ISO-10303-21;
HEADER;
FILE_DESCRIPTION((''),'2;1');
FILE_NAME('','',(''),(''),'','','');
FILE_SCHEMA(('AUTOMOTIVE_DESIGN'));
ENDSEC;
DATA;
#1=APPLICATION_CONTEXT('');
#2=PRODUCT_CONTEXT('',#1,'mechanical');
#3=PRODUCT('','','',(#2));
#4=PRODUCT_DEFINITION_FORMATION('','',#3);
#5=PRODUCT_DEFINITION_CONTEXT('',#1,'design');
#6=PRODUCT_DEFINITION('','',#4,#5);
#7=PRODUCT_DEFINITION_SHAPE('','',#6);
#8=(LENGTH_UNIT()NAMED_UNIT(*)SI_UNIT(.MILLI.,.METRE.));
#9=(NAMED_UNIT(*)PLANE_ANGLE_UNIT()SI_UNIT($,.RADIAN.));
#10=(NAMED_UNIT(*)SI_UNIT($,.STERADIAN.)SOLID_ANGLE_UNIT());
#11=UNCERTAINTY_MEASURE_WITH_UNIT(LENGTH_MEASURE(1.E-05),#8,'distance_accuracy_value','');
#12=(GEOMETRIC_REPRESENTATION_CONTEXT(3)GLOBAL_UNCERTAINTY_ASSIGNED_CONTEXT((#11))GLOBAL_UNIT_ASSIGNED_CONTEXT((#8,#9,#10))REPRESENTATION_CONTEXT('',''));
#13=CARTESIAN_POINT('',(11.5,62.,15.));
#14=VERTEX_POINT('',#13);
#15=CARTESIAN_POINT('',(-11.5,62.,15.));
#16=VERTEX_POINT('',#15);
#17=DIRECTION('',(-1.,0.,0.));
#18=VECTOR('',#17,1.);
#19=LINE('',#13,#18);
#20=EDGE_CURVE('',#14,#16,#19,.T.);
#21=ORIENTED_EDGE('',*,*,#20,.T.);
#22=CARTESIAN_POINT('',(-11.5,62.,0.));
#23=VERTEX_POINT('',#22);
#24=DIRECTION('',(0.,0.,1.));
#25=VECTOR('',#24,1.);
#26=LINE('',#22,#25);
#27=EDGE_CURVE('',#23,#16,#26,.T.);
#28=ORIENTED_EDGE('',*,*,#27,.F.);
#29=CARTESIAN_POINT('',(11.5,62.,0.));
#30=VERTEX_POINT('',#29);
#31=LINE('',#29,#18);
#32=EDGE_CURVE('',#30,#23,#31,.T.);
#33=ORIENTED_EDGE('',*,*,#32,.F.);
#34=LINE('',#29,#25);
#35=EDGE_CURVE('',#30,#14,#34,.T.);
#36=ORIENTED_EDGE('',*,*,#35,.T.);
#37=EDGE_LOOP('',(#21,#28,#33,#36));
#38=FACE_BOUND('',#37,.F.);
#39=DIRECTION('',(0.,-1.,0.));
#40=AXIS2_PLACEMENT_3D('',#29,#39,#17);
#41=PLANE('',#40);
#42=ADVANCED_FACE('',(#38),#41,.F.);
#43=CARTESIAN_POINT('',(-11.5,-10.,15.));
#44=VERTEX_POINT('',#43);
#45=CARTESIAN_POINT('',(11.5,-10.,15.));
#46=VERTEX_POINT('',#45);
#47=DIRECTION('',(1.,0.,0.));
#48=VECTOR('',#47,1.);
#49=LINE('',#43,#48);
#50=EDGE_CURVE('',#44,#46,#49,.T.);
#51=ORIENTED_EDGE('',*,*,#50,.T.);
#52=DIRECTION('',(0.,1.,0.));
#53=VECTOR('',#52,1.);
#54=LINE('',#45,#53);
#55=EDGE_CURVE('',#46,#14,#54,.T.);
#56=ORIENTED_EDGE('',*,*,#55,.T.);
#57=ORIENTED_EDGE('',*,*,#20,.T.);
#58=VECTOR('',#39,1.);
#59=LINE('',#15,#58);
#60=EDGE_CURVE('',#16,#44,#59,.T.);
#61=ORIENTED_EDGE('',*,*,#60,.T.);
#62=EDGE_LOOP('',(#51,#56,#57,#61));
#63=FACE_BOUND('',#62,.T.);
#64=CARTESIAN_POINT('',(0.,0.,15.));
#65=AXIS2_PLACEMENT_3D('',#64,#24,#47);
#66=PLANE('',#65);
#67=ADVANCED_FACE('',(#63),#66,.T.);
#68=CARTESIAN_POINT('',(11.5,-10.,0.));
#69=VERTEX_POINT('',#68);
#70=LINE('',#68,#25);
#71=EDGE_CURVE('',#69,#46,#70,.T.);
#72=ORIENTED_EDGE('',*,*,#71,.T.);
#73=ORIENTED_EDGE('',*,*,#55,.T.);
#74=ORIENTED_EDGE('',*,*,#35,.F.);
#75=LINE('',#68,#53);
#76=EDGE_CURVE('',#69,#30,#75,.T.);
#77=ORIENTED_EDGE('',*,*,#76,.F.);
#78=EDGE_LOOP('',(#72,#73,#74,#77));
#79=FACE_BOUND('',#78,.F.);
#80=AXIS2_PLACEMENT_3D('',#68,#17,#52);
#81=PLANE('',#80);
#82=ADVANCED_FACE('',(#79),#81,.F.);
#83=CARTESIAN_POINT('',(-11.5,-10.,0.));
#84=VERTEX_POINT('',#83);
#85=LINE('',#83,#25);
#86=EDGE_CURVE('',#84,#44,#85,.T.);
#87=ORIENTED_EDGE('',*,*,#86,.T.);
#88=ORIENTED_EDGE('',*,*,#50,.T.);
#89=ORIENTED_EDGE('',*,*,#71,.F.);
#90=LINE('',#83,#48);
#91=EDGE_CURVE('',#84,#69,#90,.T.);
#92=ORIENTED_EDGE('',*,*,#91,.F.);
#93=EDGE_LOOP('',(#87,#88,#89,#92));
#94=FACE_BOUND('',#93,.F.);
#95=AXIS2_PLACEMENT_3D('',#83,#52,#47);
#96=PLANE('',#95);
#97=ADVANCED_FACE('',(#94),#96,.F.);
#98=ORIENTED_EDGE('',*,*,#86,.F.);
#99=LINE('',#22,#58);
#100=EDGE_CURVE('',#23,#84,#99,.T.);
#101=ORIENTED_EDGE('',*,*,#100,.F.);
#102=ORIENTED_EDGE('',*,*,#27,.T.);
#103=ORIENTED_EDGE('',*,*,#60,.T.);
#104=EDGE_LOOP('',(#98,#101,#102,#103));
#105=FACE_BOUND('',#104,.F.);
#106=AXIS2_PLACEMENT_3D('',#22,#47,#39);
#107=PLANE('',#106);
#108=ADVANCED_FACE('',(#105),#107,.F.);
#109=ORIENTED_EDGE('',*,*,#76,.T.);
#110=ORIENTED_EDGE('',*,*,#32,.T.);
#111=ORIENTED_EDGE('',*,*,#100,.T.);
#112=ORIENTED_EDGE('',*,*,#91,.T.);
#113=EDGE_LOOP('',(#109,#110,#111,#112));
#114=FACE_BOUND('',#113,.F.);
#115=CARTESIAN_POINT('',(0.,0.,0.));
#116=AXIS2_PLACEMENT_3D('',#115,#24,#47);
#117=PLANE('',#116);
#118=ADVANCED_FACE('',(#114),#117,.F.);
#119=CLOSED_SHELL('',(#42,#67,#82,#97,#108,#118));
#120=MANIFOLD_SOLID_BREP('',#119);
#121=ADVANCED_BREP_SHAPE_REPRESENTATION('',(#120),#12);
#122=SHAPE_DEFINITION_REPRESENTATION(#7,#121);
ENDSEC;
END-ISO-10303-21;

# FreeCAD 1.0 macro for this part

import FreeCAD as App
import Part
import Sketcher


def add_polygon(sketch, points):
    """Adds a closed chain of lines whose ends are joined by coincident constraints."""
    first, n = sketch.GeometryCount, len(points)
    for a, b in zip(points, points[1:] + points[:1]):
        sketch.addGeometry(Part.LineSegment(App.Vector(*a, 0), App.Vector(*b, 0)), False)
    for i in range(n):
        sketch.addConstraint(Sketcher.Constraint("Coincident", first + i, 2, first + (i + 1) % n, 1))

doc = App.newDocument("Part")
body = doc.addObject("PartDesign::Body", "Body")

sketch1 = doc.addObject("Sketcher::SketchObject", "Sketch")
body.addObject(sketch1)
sketch1.AttachmentSupport = (doc.XY_Plane, [""])
sketch1.MapMode = "FlatFace"
add_polygon(sketch1, [(-11.5, 62), (-11.5, -10), (11.5, -10), (11.5, 62)])
sketch1.addConstraint(Sketcher.Constraint("Vertical", 0))
sketch1.addConstraint(Sketcher.Constraint("Horizontal", 1))
sketch1.addConstraint(Sketcher.Constraint("Vertical", 2))
sketch1.addConstraint(Sketcher.Constraint("Horizontal", 3))
sketch1.addConstraint(Sketcher.Constraint("DistanceX", 1, 1, 1, 2, 23.0))
sketch1.addConstraint(Sketcher.Constraint("DistanceY", 0, 2, 0, 1, 72.0))
sketch1.addConstraint(Sketcher.Constraint("DistanceY", 0, 2, -1, 1, 10.0))
sketch1.addConstraint(Sketcher.Constraint("DistanceX", 0, 2, -1, 1, 11.5))
pad1 = doc.addObject("PartDesign::Pad", "Pad")
body.addObject(pad1)
pad1.Profile = sketch1
pad1.Length = 15

doc.recompute()
